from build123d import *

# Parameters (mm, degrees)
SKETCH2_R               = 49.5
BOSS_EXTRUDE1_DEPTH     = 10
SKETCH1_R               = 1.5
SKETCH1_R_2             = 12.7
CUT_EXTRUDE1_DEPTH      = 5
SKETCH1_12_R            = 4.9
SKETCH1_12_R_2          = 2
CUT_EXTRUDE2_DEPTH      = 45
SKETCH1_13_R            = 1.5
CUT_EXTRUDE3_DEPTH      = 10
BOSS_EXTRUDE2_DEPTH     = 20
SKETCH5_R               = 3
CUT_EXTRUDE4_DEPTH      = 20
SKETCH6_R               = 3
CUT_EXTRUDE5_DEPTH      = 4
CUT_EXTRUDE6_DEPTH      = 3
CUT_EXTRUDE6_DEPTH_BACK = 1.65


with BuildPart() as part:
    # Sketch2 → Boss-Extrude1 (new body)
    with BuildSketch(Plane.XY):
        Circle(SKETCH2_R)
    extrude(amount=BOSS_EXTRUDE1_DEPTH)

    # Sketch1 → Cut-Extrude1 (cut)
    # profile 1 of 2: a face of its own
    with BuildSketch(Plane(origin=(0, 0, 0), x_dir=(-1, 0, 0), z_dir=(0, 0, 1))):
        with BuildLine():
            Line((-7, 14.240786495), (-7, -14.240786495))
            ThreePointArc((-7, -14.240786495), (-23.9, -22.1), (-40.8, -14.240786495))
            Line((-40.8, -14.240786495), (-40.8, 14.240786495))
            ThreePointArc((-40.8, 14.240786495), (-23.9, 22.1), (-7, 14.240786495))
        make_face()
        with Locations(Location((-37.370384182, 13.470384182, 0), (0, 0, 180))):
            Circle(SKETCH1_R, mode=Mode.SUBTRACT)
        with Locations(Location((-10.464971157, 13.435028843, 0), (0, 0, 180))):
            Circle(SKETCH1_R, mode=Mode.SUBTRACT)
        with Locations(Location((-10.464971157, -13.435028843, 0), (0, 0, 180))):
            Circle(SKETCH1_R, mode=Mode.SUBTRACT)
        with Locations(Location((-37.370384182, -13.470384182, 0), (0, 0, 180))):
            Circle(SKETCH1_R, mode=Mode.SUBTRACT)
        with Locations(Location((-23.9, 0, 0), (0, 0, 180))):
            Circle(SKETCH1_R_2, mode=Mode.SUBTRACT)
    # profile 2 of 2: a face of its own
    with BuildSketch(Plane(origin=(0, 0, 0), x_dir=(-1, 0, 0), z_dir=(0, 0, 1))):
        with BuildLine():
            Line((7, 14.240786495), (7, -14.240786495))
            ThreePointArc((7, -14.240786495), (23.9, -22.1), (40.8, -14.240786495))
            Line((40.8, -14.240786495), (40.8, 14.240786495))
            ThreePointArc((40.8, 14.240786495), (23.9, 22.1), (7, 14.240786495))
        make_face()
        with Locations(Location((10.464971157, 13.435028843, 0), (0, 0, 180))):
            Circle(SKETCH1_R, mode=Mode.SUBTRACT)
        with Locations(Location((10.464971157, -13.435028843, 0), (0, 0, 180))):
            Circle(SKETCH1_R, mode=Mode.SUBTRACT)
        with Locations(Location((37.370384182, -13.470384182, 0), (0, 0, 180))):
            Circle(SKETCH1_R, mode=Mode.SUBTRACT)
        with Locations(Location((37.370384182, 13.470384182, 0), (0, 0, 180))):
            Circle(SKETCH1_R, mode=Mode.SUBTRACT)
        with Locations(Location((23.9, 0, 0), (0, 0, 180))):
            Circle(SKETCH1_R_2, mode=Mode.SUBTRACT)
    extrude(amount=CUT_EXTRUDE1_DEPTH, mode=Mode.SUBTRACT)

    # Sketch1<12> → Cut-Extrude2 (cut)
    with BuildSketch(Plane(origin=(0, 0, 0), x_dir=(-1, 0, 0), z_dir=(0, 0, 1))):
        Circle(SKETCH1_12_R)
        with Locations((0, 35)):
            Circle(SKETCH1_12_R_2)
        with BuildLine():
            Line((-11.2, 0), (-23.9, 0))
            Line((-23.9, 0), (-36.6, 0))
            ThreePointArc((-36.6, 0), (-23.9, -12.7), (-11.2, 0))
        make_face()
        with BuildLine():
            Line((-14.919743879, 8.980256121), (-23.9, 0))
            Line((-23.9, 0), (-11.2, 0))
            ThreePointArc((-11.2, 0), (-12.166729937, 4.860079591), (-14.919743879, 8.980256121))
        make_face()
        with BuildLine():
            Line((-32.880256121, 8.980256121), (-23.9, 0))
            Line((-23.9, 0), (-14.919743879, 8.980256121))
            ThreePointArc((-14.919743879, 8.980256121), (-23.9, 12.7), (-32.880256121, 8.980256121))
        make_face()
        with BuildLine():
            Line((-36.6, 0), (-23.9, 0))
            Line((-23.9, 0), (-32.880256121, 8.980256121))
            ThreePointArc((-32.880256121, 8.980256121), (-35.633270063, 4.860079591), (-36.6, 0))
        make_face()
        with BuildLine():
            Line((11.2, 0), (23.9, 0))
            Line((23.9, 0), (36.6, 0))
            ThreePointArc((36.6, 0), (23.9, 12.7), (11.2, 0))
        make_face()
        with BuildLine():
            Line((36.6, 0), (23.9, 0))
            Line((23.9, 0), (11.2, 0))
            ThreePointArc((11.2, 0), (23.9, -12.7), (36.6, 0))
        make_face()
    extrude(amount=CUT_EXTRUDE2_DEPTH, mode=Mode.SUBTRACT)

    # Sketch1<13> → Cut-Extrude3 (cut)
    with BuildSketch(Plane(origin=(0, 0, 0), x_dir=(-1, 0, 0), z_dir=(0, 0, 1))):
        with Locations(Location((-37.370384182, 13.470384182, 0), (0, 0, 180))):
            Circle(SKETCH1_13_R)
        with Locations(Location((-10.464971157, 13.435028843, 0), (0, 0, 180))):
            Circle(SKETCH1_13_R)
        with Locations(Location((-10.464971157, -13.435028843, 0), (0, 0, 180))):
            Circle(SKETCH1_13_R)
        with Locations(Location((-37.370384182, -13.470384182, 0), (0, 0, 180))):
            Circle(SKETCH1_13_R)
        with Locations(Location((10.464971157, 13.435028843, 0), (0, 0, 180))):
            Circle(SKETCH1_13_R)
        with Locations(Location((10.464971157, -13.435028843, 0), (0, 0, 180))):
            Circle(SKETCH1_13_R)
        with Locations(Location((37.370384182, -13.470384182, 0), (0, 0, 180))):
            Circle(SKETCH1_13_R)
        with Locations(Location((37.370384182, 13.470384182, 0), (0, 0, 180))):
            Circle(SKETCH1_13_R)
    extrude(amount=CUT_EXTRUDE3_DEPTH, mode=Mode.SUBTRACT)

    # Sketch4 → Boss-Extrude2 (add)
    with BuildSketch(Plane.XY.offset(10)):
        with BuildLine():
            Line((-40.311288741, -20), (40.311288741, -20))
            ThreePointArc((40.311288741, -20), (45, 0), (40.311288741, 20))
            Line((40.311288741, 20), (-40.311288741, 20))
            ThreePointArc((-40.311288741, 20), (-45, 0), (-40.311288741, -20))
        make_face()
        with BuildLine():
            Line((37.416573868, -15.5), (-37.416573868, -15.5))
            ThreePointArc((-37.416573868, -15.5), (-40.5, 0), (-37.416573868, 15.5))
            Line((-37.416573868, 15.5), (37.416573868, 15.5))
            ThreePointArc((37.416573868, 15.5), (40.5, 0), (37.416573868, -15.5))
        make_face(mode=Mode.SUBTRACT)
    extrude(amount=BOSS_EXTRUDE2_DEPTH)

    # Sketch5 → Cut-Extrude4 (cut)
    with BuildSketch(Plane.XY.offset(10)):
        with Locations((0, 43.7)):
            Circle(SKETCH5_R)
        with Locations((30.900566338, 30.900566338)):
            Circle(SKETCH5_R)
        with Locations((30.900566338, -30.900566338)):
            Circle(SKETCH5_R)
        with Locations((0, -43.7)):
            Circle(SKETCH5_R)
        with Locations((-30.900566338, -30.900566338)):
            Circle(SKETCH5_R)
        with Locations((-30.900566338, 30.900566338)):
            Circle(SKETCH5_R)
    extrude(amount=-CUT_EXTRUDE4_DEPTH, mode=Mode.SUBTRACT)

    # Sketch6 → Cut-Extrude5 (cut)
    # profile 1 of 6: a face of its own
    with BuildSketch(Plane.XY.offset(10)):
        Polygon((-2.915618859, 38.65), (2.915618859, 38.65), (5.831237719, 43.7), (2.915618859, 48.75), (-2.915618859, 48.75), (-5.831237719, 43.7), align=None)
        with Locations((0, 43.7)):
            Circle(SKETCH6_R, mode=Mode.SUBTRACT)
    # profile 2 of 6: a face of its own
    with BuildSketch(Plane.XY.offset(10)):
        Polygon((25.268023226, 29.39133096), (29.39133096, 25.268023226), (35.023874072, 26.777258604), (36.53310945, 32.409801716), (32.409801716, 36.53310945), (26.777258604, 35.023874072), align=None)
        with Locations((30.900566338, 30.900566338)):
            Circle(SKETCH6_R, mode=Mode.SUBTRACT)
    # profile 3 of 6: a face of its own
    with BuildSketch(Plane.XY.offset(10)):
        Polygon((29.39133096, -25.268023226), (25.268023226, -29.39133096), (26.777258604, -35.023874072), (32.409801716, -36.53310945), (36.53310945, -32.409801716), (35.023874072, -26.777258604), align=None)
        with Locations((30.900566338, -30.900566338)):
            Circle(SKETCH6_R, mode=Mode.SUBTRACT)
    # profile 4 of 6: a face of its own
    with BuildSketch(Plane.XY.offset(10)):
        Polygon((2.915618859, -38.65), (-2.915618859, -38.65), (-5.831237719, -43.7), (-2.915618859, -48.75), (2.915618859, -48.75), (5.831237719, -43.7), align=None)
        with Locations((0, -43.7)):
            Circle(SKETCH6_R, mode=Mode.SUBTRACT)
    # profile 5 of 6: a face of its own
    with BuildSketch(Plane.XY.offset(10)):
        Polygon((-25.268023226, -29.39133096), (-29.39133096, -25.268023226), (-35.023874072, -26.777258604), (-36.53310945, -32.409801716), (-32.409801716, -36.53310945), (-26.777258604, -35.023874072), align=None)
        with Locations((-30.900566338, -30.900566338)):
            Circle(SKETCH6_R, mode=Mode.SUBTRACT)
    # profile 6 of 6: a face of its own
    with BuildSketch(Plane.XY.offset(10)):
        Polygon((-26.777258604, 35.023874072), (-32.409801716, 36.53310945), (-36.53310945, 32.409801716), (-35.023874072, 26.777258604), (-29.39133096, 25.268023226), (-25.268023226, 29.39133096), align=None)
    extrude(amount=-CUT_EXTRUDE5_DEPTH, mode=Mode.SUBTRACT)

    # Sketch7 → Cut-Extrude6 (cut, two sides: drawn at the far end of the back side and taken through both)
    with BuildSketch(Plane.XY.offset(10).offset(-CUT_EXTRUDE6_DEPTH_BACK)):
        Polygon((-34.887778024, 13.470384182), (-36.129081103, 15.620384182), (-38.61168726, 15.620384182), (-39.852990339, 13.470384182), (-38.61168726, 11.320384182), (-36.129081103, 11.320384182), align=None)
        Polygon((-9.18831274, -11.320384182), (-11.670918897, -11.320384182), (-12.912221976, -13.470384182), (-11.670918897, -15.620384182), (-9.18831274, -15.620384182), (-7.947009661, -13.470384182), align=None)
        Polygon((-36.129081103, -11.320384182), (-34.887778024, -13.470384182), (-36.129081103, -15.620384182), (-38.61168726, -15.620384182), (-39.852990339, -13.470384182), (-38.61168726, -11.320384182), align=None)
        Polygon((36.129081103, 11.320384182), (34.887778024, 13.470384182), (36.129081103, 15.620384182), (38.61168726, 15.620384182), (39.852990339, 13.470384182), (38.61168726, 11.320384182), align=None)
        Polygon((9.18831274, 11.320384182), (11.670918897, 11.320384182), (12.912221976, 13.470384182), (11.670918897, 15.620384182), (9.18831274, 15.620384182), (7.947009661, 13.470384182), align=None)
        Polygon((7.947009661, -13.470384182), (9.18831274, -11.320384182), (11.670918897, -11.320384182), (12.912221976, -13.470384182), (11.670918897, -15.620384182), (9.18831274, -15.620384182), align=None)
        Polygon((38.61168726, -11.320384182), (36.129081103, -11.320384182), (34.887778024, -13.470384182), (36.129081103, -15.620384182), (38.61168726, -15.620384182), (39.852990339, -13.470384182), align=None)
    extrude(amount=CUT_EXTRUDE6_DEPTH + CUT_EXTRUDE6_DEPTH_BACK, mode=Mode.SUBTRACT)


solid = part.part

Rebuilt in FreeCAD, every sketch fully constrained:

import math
import FreeCAD as App
import Part
import Sketcher
Q = App.Units.Quantity


def add_polygon(sketch, points):
    """Adds a closed chain of lines whose ends are joined by coincident constraints."""
    first, n = sketch.GeometryCount, len(points)
    for a, b in zip(points, points[1:] + points[:1]):
        sketch.addGeometry(Part.LineSegment(App.Vector(*a, 0), App.Vector(*b, 0)), False)
    for i in range(n):
        sketch.addConstraint(Sketcher.Constraint("Coincident", first + i, 2, first + (i + 1) % n, 1))

doc = App.newDocument("Part")
params = doc.addObject("Spreadsheet::Sheet", "Params")
for row, (alias, value) in enumerate([
    ("sketch1_diameter", "99 mm"),
    ("pad1_length", "10 mm"),
    ("sketch2_diameter", "3 mm"),
    ("sketch2_diameter2", "25.4 mm"),
    ("sketch2_radius", "22.1 mm"),
    ("pocket1_length", "5 mm"),
    ("sketch3_diameter", "4 mm"),
    ("sketch3_diameter2", "9.8 mm"),
    ("sketch3_diameter3", "25.4 mm"),
    ("pocket2_length", "45 mm"),
    ("sketch4_diameter", "3 mm"),
    ("pocket3_length", "10 mm"),
    ("sketch5_radius", "45 mm"),
    ("sketch5_radius2", "40.5 mm"),
    ("pad2_length", "20 mm"),
    ("sketch6_diameter", "6 mm"),
    ("pocket4_length", "20 mm"),
    ("sketch7_diameter", "6 mm"),
    ("pocket5_length", "4 mm"),
    ("pocket6_length", "3 mm"),
    ("pocket6_length2", "1.65 mm"),
], start=1):
    params.set(f"A{row}", alias)
    params.set(f"B{row}", "=" + value)
    params.setAlias(f"B{row}", alias)

body = doc.addObject("PartDesign::Body", "Body")

sketch1 = body.newObject("Sketcher::SketchObject", "Sketch")
sketch1.AttachmentSupport = (doc.getObject("XY_Plane"), [""])
sketch1.MapMode = "FlatFace"
sketch1.addGeometry(Part.Circle(App.Vector(0, 0, 0), App.Vector(0, 0, 1), 49.5), False)
sketch1.addConstraint(Sketcher.Constraint("Coincident", 0, 3, -1, 1))
sketch1.addConstraint(Sketcher.Constraint("Diameter", 0, Q("99 mm")))
sketch1.setExpression("Constraints[1]", "Params.sketch1_diameter")
pad1 = body.newObject("PartDesign::Pad", "Pad")
pad1.Profile = sketch1
pad1.setExpression("Length", "Params.pad1_length")

sketch2 = body.newObject("Sketcher::SketchObject", "Sketch001")
sketch2.AttachmentSupport = (doc.getObject("XY_Plane"), [""])
sketch2.MapMode = "FlatFace"
sketch2.addGeometry(Part.LineSegment(App.Vector(7, 14.240786, 0), App.Vector(7, -14.240786, 0)), False)
sketch2.addGeometry(Part.ArcOfCircle(Part.Circle(App.Vector(23.9, 0, 0), App.Vector(0, 0, 1), 22.1), math.radians(-139.880833), math.radians(-40.119167)), False)
sketch2.addGeometry(Part.LineSegment(App.Vector(40.8, -14.240786, 0), App.Vector(40.8, 14.240786, 0)), False)
sketch2.addGeometry(Part.ArcOfCircle(Part.Circle(App.Vector(23.9, 0, 0), App.Vector(0, 0, 1), 22.1), math.radians(40.119167), math.radians(139.880833)), False)
sketch2.addGeometry(Part.Circle(App.Vector(10.464971, 13.435029, 0), App.Vector(0, 0, 1), 1.5), False)
sketch2.addGeometry(Part.Circle(App.Vector(37.370384, 13.470384, 0), App.Vector(0, 0, 1), 1.5), False)
sketch2.addGeometry(Part.Circle(App.Vector(23.9, 0, 0), App.Vector(0, 0, 1), 12.7), False)
sketch2.addGeometry(Part.Circle(App.Vector(10.464971, -13.435029, 0), App.Vector(0, 0, 1), 1.5), False)
sketch2.addGeometry(Part.Circle(App.Vector(37.370384, -13.470384, 0), App.Vector(0, 0, 1), 1.5), False)
sketch2.addGeometry(Part.LineSegment(App.Vector(-7, -14.240786, 0), App.Vector(-7, 14.240786, 0)), False)
sketch2.addGeometry(Part.ArcOfCircle(Part.Circle(App.Vector(-23.9, 0, 0), App.Vector(0, 0, 1), 22.1), math.radians(40.119167), math.radians(139.880833)), False)
sketch2.addGeometry(Part.LineSegment(App.Vector(-40.8, 14.240786, 0), App.Vector(-40.8, -14.240786, 0)), False)
sketch2.addGeometry(Part.ArcOfCircle(Part.Circle(App.Vector(-23.9, 0, 0), App.Vector(0, 0, 1), 22.1), math.radians(-139.880833), math.radians(-40.119167)), False)
sketch2.addGeometry(Part.Circle(App.Vector(-10.464971, 13.435029, 0), App.Vector(0, 0, 1), 1.5), False)
sketch2.addGeometry(Part.Circle(App.Vector(-37.370384, 13.470384, 0), App.Vector(0, 0, 1), 1.5), False)
sketch2.addGeometry(Part.Circle(App.Vector(-23.9, 0, 0), App.Vector(0, 0, 1), 12.7), False)
sketch2.addGeometry(Part.Circle(App.Vector(-10.464971, -13.435029, 0), App.Vector(0, 0, 1), 1.5), False)
sketch2.addGeometry(Part.Circle(App.Vector(-37.370384, -13.470384, 0), App.Vector(0, 0, 1), 1.5), False)
sketch2.addConstraint(Sketcher.Constraint("Coincident", 0, 2, 1, 1))
sketch2.addConstraint(Sketcher.Constraint("Coincident", 1, 2, 2, 1))
sketch2.addConstraint(Sketcher.Constraint("Coincident", 2, 2, 3, 1))
sketch2.addConstraint(Sketcher.Constraint("Coincident", 3, 2, 0, 1))
sketch2.addConstraint(Sketcher.Constraint("Coincident", 9, 2, 10, 1))
sketch2.addConstraint(Sketcher.Constraint("Coincident", 10, 2, 11, 1))
sketch2.addConstraint(Sketcher.Constraint("Coincident", 11, 2, 12, 1))
sketch2.addConstraint(Sketcher.Constraint("Coincident", 12, 2, 9, 1))
sketch2.addConstraint(Sketcher.Constraint("Vertical", 0))
sketch2.addConstraint(Sketcher.Constraint("Vertical", 2))
sketch2.addConstraint(Sketcher.Constraint("Vertical", 9))
sketch2.addConstraint(Sketcher.Constraint("Vertical", 11))
sketch2.addConstraint(Sketcher.Constraint("Coincident", 3, 3, 1, 3))
sketch2.addConstraint(Sketcher.Constraint("Coincident", 6, 3, 1, 3))
sketch2.addConstraint(Sketcher.Constraint("Coincident", 12, 3, 10, 3))
sketch2.addConstraint(Sketcher.Constraint("Coincident", 15, 3, 10, 3))
sketch2.addConstraint(Sketcher.Constraint("Equal", 1, 3))
sketch2.addConstraint(Sketcher.Constraint("Equal", 4, 5))
sketch2.addConstraint(Sketcher.Constraint("Equal", 5, 7))
sketch2.addConstraint(Sketcher.Constraint("Equal", 7, 8))
sketch2.addConstraint(Sketcher.Constraint("Equal", 3, 10))
sketch2.addConstraint(Sketcher.Constraint("Equal", 10, 12))
sketch2.addConstraint(Sketcher.Constraint("Equal", 8, 13))
sketch2.addConstraint(Sketcher.Constraint("Equal", 13, 14))
sketch2.addConstraint(Sketcher.Constraint("Equal", 6, 15))
sketch2.addConstraint(Sketcher.Constraint("Equal", 14, 16))
sketch2.addConstraint(Sketcher.Constraint("Equal", 16, 17))
sketch2.addConstraint(Sketcher.Constraint("Symmetric", 1, 3, 10, 3, -1, 1))
sketch2.addConstraint(Sketcher.Constraint("Symmetric", 7, 3, 13, 3, -1, 1))
sketch2.addConstraint(Sketcher.Constraint("Symmetric", 8, 3, 14, 3, -1, 1))
sketch2.addConstraint(Sketcher.Constraint("Symmetric", 4, 3, 16, 3, -1, 1))
sketch2.addConstraint(Sketcher.Constraint("Symmetric", 5, 3, 17, 3, -1, 1))
sketch2.addConstraint(Sketcher.Constraint("Symmetric", 4, 3, 13, 3, -2))
sketch2.addConstraint(Sketcher.Constraint("Symmetric", 5, 3, 14, 3, -2))
sketch2.addConstraint(Sketcher.Constraint("Symmetric", 3, 2, 9, 2, -2))
sketch2.addConstraint(Sketcher.Constraint("Horizontal", 0, 2, 1, 2))
sketch2.addConstraint(Sketcher.Constraint("Horizontal", 9, 2, 10, 2))
sketch2.addConstraint(Sketcher.Constraint("Diameter", 4, Q("3 mm")))
sketch2.addConstraint(Sketcher.Constraint("Diameter", 6, Q("25.4 mm")))
sketch2.addConstraint(Sketcher.Constraint("Radius", 1, Q("22.1 mm")))
sketch2.addConstraint(Sketcher.Constraint("DistanceX", -1, 1, 0, 2, Q("7 mm")))
sketch2.addConstraint(Sketcher.Constraint("DistanceX", -1, 1, 1, 3, Q("23.9 mm")))
sketch2.addConstraint(Sketcher.Constraint("DistanceX", -1, 1, 4, 3, Q("10.464971 mm")))
sketch2.addConstraint(Sketcher.Constraint("DistanceY", -1, 1, 4, 3, Q("13.435029 mm")))
sketch2.addConstraint(Sketcher.Constraint("DistanceY", 8, 3, 5, 3, Q("26.940768 mm")))
sketch2.addConstraint(Sketcher.Constraint("DistanceX", -1, 1, 5, 3, Q("37.370384 mm")))
sketch2.setExpression("Constraints[37]", "Params.sketch2_diameter")
sketch2.setExpression("Constraints[38]", "Params.sketch2_diameter2")
sketch2.setExpression("Constraints[39]", "Params.sketch2_radius")
pocket1 = body.newObject("PartDesign::Pocket", "Pocket")
pocket1.Profile = sketch2
pocket1.setExpression("Length", "Params.pocket1_length")
pocket1.Reversed = True

sketch3 = body.newObject("Sketcher::SketchObject", "Sketch002")
sketch3.AttachmentSupport = (doc.getObject("XY_Plane"), [""])
sketch3.MapMode = "FlatFace"
sketch3.addGeometry(Part.Circle(App.Vector(0, 0, 0), App.Vector(0, 0, 1), 4.9), False)
sketch3.addGeometry(Part.Circle(App.Vector(0, -35, 0), App.Vector(0, 0, 1), 2), False)
sketch3.addGeometry(Part.ArcOfCircle(Part.Circle(App.Vector(23.9, 0, 0), App.Vector(0, 0, 1), 12.7), math.radians(0), math.radians(180)), False)
sketch3.addGeometry(Part.ArcOfCircle(Part.Circle(App.Vector(23.9, 0, 0), App.Vector(0, 0, 1), 12.7), math.radians(180), math.radians(225)), False)
sketch3.addGeometry(Part.ArcOfCircle(Part.Circle(App.Vector(23.9, 0, 0), App.Vector(0, 0, 1), 12.7), math.radians(-135), math.radians(-45)), False)
sketch3.addGeometry(Part.ArcOfCircle(Part.Circle(App.Vector(23.9, 0, 0), App.Vector(0, 0, 1), 12.7), math.radians(-45), math.radians(0)), False)
sketch3.addGeometry(Part.Circle(App.Vector(-23.9, 0, 0), App.Vector(0, 0, 1), 12.7), False)
sketch3.addConstraint(Sketcher.Constraint("Tangent", 2, 2, 3, 1))
sketch3.addConstraint(Sketcher.Constraint("Tangent", 3, 2, 4, 1))
sketch3.addConstraint(Sketcher.Constraint("Tangent", 4, 2, 5, 1))
sketch3.addConstraint(Sketcher.Constraint("Tangent", 5, 2, 2, 1))
sketch3.addConstraint(Sketcher.Constraint("Coincident", 0, 3, -1, 1))
sketch3.addConstraint(Sketcher.Constraint("Equal", 2, 3))
sketch3.addConstraint(Sketcher.Constraint("Equal", 5, 6))
sketch3.addConstraint(Sketcher.Constraint("Symmetric", 2, 3, 6, 3, -1, 1))
sketch3.addConstraint(Sketcher.Constraint("PointOnObject", 1, 3, -2))
sketch3.addConstraint(Sketcher.Constraint("PointOnObject", 2, 3, -1))
sketch3.addConstraint(Sketcher.Constraint("PointOnObject", 2, 2, -1))
sketch3.addConstraint(Sketcher.Constraint("PointOnObject", 5, 2, -1))
sketch3.addConstraint(Sketcher.Constraint("Horizontal", 3, 2, 4, 2))
sketch3.addConstraint(Sketcher.Constraint("Diameter", 1, Q("4 mm")))
sketch3.addConstraint(Sketcher.Constraint("Diameter", 0, Q("9.8 mm")))
sketch3.addConstraint(Sketcher.Constraint("Diameter", 6, Q("25.4 mm")))
sketch3.addConstraint(Sketcher.Constraint("DistanceY", 1, 3, -1, 1, Q("35 mm")))
sketch3.addConstraint(Sketcher.Constraint("DistanceX", -1, 1, 2, 3, Q("23.9 mm")))
sketch3.addConstraint(Sketcher.Constraint("DistanceX", -1, 1, 3, 2, Q("14.919744 mm")))
sketch3.setExpression("Constraints[13]", "Params.sketch3_diameter")
sketch3.setExpression("Constraints[14]", "Params.sketch3_diameter2")
sketch3.setExpression("Constraints[15]", "Params.sketch3_diameter3")
pocket2 = body.newObject("PartDesign::Pocket", "Pocket001")
pocket2.Profile = sketch3
pocket2.setExpression("Length", "Params.pocket2_length")
pocket2.Reversed = True

sketch4 = body.newObject("Sketcher::SketchObject", "Sketch003")
sketch4.AttachmentSupport = (doc.getObject("XY_Plane"), [""])
sketch4.MapMode = "FlatFace"
sketch4.addGeometry(Part.Circle(App.Vector(37.370384, -13.470384, 0), App.Vector(0, 0, 1), 1.5), False)
sketch4.addGeometry(Part.Circle(App.Vector(10.464971, -13.435029, 0), App.Vector(0, 0, 1), 1.5), False)
sketch4.addGeometry(Part.Circle(App.Vector(10.464971, 13.435029, 0), App.Vector(0, 0, 1), 1.5), False)
sketch4.addGeometry(Part.Circle(App.Vector(37.370384, 13.470384, 0), App.Vector(0, 0, 1), 1.5), False)
sketch4.addGeometry(Part.Circle(App.Vector(-10.464971, -13.435029, 0), App.Vector(0, 0, 1), 1.5), False)
sketch4.addGeometry(Part.Circle(App.Vector(-10.464971, 13.435029, 0), App.Vector(0, 0, 1), 1.5), False)
sketch4.addGeometry(Part.Circle(App.Vector(-37.370384, 13.470384, 0), App.Vector(0, 0, 1), 1.5), False)
sketch4.addGeometry(Part.Circle(App.Vector(-37.370384, -13.470384, 0), App.Vector(0, 0, 1), 1.5), False)
sketch4.addConstraint(Sketcher.Constraint("Equal", 0, 1))
sketch4.addConstraint(Sketcher.Constraint("Equal", 1, 2))
sketch4.addConstraint(Sketcher.Constraint("Equal", 2, 3))
sketch4.addConstraint(Sketcher.Constraint("Equal", 3, 4))
sketch4.addConstraint(Sketcher.Constraint("Equal", 4, 5))
sketch4.addConstraint(Sketcher.Constraint("Equal", 5, 6))
sketch4.addConstraint(Sketcher.Constraint("Equal", 6, 7))
sketch4.addConstraint(Sketcher.Constraint("Symmetric", 2, 3, 4, 3, -1, 1))
sketch4.addConstraint(Sketcher.Constraint("Symmetric", 1, 3, 5, 3, -1, 1))
sketch4.addConstraint(Sketcher.Constraint("Symmetric", 0, 3, 6, 3, -1, 1))
sketch4.addConstraint(Sketcher.Constraint("Symmetric", 3, 3, 7, 3, -1, 1))
sketch4.addConstraint(Sketcher.Constraint("Symmetric", 1, 3, 4, 3, -2))
sketch4.addConstraint(Sketcher.Constraint("Symmetric", 3, 3, 6, 3, -2))
sketch4.addConstraint(Sketcher.Constraint("Diameter", 0, Q("3 mm")))
sketch4.addConstraint(Sketcher.Constraint("DistanceX", -1, 1, 1, 3, Q("10.464971 mm")))
sketch4.addConstraint(Sketcher.Constraint("DistanceY", 1, 3, -1, 1, Q("13.435029 mm")))
sketch4.addConstraint(Sketcher.Constraint("DistanceY", 0, 3, 3, 3, Q("26.940768 mm")))
sketch4.addConstraint(Sketcher.Constraint("DistanceX", 6, 3, 3, 3, Q("74.740768 mm")))
sketch4.setExpression("Constraints[13]", "Params.sketch4_diameter")
pocket3 = body.newObject("PartDesign::Pocket", "Pocket002")
pocket3.Profile = sketch4
pocket3.setExpression("Length", "Params.pocket3_length")
pocket3.Reversed = True

sketch5 = body.newObject("Sketcher::SketchObject", "Sketch004")
sketch5.AttachmentSupport = (doc.getObject("XY_Plane"), [""])
sketch5.MapMode = "FlatFace"
sketch5.AttachmentOffset = App.Placement(App.Vector(0, 0, 10), App.Rotation())
sketch5.addGeometry(Part.LineSegment(App.Vector(-40.311289, -20, 0), App.Vector(40.311289, -20, 0)), False)
sketch5.addGeometry(Part.ArcOfCircle(Part.Circle(App.Vector(0, 0, 0), App.Vector(0, 0, 1), 45), math.radians(-26.3878), math.radians(26.3878)), False)
sketch5.addGeometry(Part.LineSegment(App.Vector(40.311289, 20, 0), App.Vector(-40.311289, 20, 0)), False)
sketch5.addGeometry(Part.ArcOfCircle(Part.Circle(App.Vector(0, 0, 0), App.Vector(0, 0, 1), 45), math.radians(153.6122), math.radians(206.3878)), False)
sketch5.addGeometry(Part.ArcOfCircle(Part.Circle(App.Vector(0, 0, 0), App.Vector(0, 0, 1), 40.5), math.radians(-22.502023), math.radians(22.502023)), False)
sketch5.addGeometry(Part.LineSegment(App.Vector(37.416574, -15.5, 0), App.Vector(-37.416574, -15.5, 0)), False)
sketch5.addGeometry(Part.ArcOfCircle(Part.Circle(App.Vector(0, 0, 0), App.Vector(0, 0, 1), 40.5), math.radians(157.497977), math.radians(202.502023)), False)
sketch5.addGeometry(Part.LineSegment(App.Vector(-37.416574, 15.5, 0), App.Vector(37.416574, 15.5, 0)), False)
sketch5.addConstraint(Sketcher.Constraint("Coincident", 0, 2, 1, 1))
sketch5.addConstraint(Sketcher.Constraint("Coincident", 1, 2, 2, 1))
sketch5.addConstraint(Sketcher.Constraint("Coincident", 2, 2, 3, 1))
sketch5.addConstraint(Sketcher.Constraint("Coincident", 3, 2, 0, 1))
sketch5.addConstraint(Sketcher.Constraint("Coincident", 4, 1, 5, 1))
sketch5.addConstraint(Sketcher.Constraint("Coincident", 5, 2, 6, 2))
sketch5.addConstraint(Sketcher.Constraint("Coincident", 6, 1, 7, 1))
sketch5.addConstraint(Sketcher.Constraint("Coincident", 7, 2, 4, 2))
sketch5.addConstraint(Sketcher.Constraint("Horizontal", 0))
sketch5.addConstraint(Sketcher.Constraint("Horizontal", 2))
sketch5.addConstraint(Sketcher.Constraint("Horizontal", 5))
sketch5.addConstraint(Sketcher.Constraint("Horizontal", 7))
sketch5.addConstraint(Sketcher.Constraint("Coincident", 1, 3, -1, 1))
sketch5.addConstraint(Sketcher.Constraint("Coincident", 3, 3, -1, 1))
sketch5.addConstraint(Sketcher.Constraint("Coincident", 4, 3, -1, 1))
sketch5.addConstraint(Sketcher.Constraint("Coincident", 6, 3, -1, 1))
sketch5.addConstraint(Sketcher.Constraint("Equal", 1, 3))
sketch5.addConstraint(Sketcher.Constraint("Equal", 4, 6))
sketch5.addConstraint(Sketcher.Constraint("Vertical", 0, 2, 1, 2))
sketch5.addConstraint(Sketcher.Constraint("Vertical", 5, 2, 6, 1))
sketch5.addConstraint(Sketcher.Constraint("Radius", 1, Q("45 mm")))
sketch5.addConstraint(Sketcher.Constraint("Radius", 4, Q("40.5 mm")))
sketch5.addConstraint(Sketcher.Constraint("DistanceY", 0, 2, -1, 1, Q("20 mm")))
sketch5.addConstraint(Sketcher.Constraint("DistanceY", 5, 2, 6, 1, Q("31 mm")))
sketch5.setExpression("Constraints[20]", "Params.sketch5_radius")
sketch5.setExpression("Constraints[21]", "Params.sketch5_radius2")
pad2 = body.newObject("PartDesign::Pad", "Pad001")
pad2.Profile = sketch5
pad2.setExpression("Length", "Params.pad2_length")

sketch6 = body.newObject("Sketcher::SketchObject", "Sketch005")
sketch6.AttachmentSupport = (doc.getObject("XY_Plane"), [""])
sketch6.MapMode = "FlatFace"
sketch6.AttachmentOffset = App.Placement(App.Vector(0, 0, 10), App.Rotation())
sketch6.addGeometry(Part.Circle(App.Vector(0, 43.7, 0), App.Vector(0, 0, 1), 3), False)
sketch6.addGeometry(Part.Circle(App.Vector(30.900566, 30.900566, 0), App.Vector(0, 0, 1), 3), False)
sketch6.addGeometry(Part.Circle(App.Vector(30.900566, -30.900566, 0), App.Vector(0, 0, 1), 3), False)
sketch6.addGeometry(Part.Circle(App.Vector(0, -43.7, 0), App.Vector(0, 0, 1), 3), False)
sketch6.addGeometry(Part.Circle(App.Vector(-30.900566, -30.900566, 0), App.Vector(0, 0, 1), 3), False)
sketch6.addGeometry(Part.Circle(App.Vector(-30.900566, 30.900566, 0), App.Vector(0, 0, 1), 3), False)
sketch6.addConstraint(Sketcher.Constraint("Equal", 0, 1))
sketch6.addConstraint(Sketcher.Constraint("Equal", 1, 2))
sketch6.addConstraint(Sketcher.Constraint("Equal", 2, 3))
sketch6.addConstraint(Sketcher.Constraint("Equal", 3, 4))
sketch6.addConstraint(Sketcher.Constraint("Equal", 4, 5))
sketch6.addConstraint(Sketcher.Constraint("Symmetric", 0, 3, 3, 3, -1, 1))
sketch6.addConstraint(Sketcher.Constraint("Symmetric", 1, 3, 4, 3, -1, 1))
sketch6.addConstraint(Sketcher.Constraint("Symmetric", 2, 3, 5, 3, -1, 1))
sketch6.addConstraint(Sketcher.Constraint("Symmetric", 2, 3, 4, 3, -2))
sketch6.addConstraint(Sketcher.Constraint("PointOnObject", 0, 3, -2))
sketch6.addConstraint(Sketcher.Constraint("Diameter", 0, Q("6 mm")))
sketch6.addConstraint(Sketcher.Constraint("DistanceY", -1, 1, 0, 3, Q("43.7 mm")))
sketch6.addConstraint(Sketcher.Constraint("DistanceX", -1, 1, 1, 3, Q("30.900566 mm")))
sketch6.addConstraint(Sketcher.Constraint("DistanceY", -1, 1, 1, 3, Q("30.900566 mm")))
sketch6.setExpression("Constraints[10]", "Params.sketch6_diameter")
pocket4 = body.newObject("PartDesign::Pocket", "Pocket003")
pocket4.Profile = sketch6
pocket4.setExpression("Length", "Params.pocket4_length")

sketch7 = body.newObject("Sketcher::SketchObject", "Sketch006")
sketch7.AttachmentSupport = (doc.getObject("XY_Plane"), [""])
sketch7.MapMode = "FlatFace"
sketch7.AttachmentOffset = App.Placement(App.Vector(0, 0, 10), App.Rotation())
add_polygon(sketch7, [(-2.915619, 38.65), (2.915619, 38.65), (5.831238, 43.7), (2.915619, 48.75), (-2.915619, 48.75), (-5.831238, 43.7)])
sketch7.addGeometry(Part.Circle(App.Vector(0, 43.7, 0), App.Vector(0, 0, 1), 3), False)
add_polygon(sketch7, [(25.268023, 29.391331), (29.391331, 25.268023), (35.023874, 26.777259), (36.533109, 32.409802), (32.409802, 36.533109), (26.777259, 35.023874)])
sketch7.addGeometry(Part.Circle(App.Vector(30.900566, 30.900566, 0), App.Vector(0, 0, 1), 3), False)
add_polygon(sketch7, [(29.391331, -25.268023), (25.268023, -29.391331), (26.777259, -35.023874), (32.409802, -36.533109), (36.533109, -32.409802), (35.023874, -26.777259)])
sketch7.addGeometry(Part.Circle(App.Vector(30.900566, -30.900566, 0), App.Vector(0, 0, 1), 3), False)
add_polygon(sketch7, [(2.915619, -38.65), (-2.915619, -38.65), (-5.831238, -43.7), (-2.915619, -48.75), (2.915619, -48.75), (5.831238, -43.7)])
sketch7.addGeometry(Part.Circle(App.Vector(0, -43.7, 0), App.Vector(0, 0, 1), 3), False)
add_polygon(sketch7, [(-25.268023, -29.391331), (-29.391331, -25.268023), (-35.023874, -26.777259), (-36.533109, -32.409802), (-32.409802, -36.533109), (-26.777259, -35.023874)])
sketch7.addGeometry(Part.Circle(App.Vector(-30.900566, -30.900566, 0), App.Vector(0, 0, 1), 3), False)
add_polygon(sketch7, [(-26.777259, 35.023874), (-32.409802, 36.533109), (-36.533109, 32.409802), (-35.023874, 26.777259), (-29.391331, 25.268023), (-25.268023, 29.391331)])
sketch7.addConstraint(Sketcher.Constraint("Horizontal", 0))
sketch7.addConstraint(Sketcher.Constraint("Horizontal", 3))
sketch7.addConstraint(Sketcher.Constraint("Horizontal", 21))
sketch7.addConstraint(Sketcher.Constraint("Horizontal", 24))
sketch7.addConstraint(Sketcher.Constraint("Equal", 6, 13))
sketch7.addConstraint(Sketcher.Constraint("Equal", 13, 20))
sketch7.addConstraint(Sketcher.Constraint("Equal", 20, 27))
sketch7.addConstraint(Sketcher.Constraint("Equal", 27, 34))
sketch7.addConstraint(Sketcher.Constraint("Symmetric", 6, 3, 27, 3, -1, 1))
sketch7.addConstraint(Sketcher.Constraint("Symmetric", 13, 3, 34, 3, -1, 1))
sketch7.addConstraint(Sketcher.Constraint("Symmetric", 0, 2, 21, 2, -1, 1))
sketch7.addConstraint(Sketcher.Constraint("Symmetric", 1, 2, 22, 2, -1, 1))
sketch7.addConstraint(Sketcher.Constraint("Symmetric", 2, 2, 23, 2, -1, 1))
sketch7.addConstraint(Sketcher.Constraint("Symmetric", 4, 2, 25, 2, -1, 1))
sketch7.addConstraint(Sketcher.Constraint("Symmetric", 7, 2, 28, 2, -1, 1))
sketch7.addConstraint(Sketcher.Constraint("Symmetric", 8, 2, 29, 2, -1, 1))
sketch7.addConstraint(Sketcher.Constraint("Symmetric", 9, 2, 30, 2, -1, 1))
sketch7.addConstraint(Sketcher.Constraint("Symmetric", 10, 2, 31, 2, -1, 1))
sketch7.addConstraint(Sketcher.Constraint("Symmetric", 11, 2, 32, 2, -1, 1))
sketch7.addConstraint(Sketcher.Constraint("Symmetric", 12, 2, 33, 2, -1, 1))
sketch7.addConstraint(Sketcher.Constraint("Symmetric", 16, 2, 35, 2, -1, 1))
sketch7.addConstraint(Sketcher.Constraint("Symmetric", 17, 2, 36, 2, -1, 1))
sketch7.addConstraint(Sketcher.Constraint("Symmetric", 18, 2, 37, 2, -1, 1))
sketch7.addConstraint(Sketcher.Constraint("Symmetric", 19, 2, 38, 2, -1, 1))
sketch7.addConstraint(Sketcher.Constraint("Symmetric", 14, 2, 39, 2, -1, 1))
sketch7.addConstraint(Sketcher.Constraint("Symmetric", 15, 2, 40, 2, -1, 1))
sketch7.addConstraint(Sketcher.Constraint("Symmetric", 20, 3, 34, 3, -2))
sketch7.addConstraint(Sketcher.Constraint("Symmetric", 1, 2, 4, 2, -2))
sketch7.addConstraint(Sketcher.Constraint("Symmetric", 19, 2, 28, 2, -2))
sketch7.addConstraint(Sketcher.Constraint("Symmetric", 18, 2, 29, 2, -2))
sketch7.addConstraint(Sketcher.Constraint("Symmetric", 17, 2, 30, 2, -2))
sketch7.addConstraint(Sketcher.Constraint("Symmetric", 16, 2, 31, 2, -2))
sketch7.addConstraint(Sketcher.Constraint("Symmetric", 15, 2, 32, 2, -2))
sketch7.addConstraint(Sketcher.Constraint("Symmetric", 14, 2, 33, 2, -2))
sketch7.addConstraint(Sketcher.Constraint("PointOnObject", 6, 3, -2))
sketch7.addConstraint(Sketcher.Constraint("Parallel", 1, 4))
sketch7.addConstraint(Sketcher.Constraint("Parallel", 2, 5))
sketch7.addConstraint(Sketcher.Constraint("Parallel", 7, 10))
sketch7.addConstraint(Sketcher.Constraint("Parallel", 8, 11))
sketch7.addConstraint(Sketcher.Constraint("Parallel", 9, 12))
sketch7.addConstraint(Sketcher.Constraint("Perpendicular", 10, 14))
sketch7.addConstraint(Sketcher.Constraint("Perpendicular", 11, 15))
sketch7.addConstraint(Sketcher.Constraint("Parallel", 22, 25))
sketch7.addConstraint(Sketcher.Constraint("Parallel", 23, 26))
sketch7.addConstraint(Sketcher.Constraint("Horizontal", 6, 3, 1, 2))
sketch7.addConstraint(Sketcher.Constraint("Vertical", 0, 2, 2, 2))
sketch7.addConstraint(Sketcher.Constraint("Vertical", 3, 2, 5, 2))
sketch7.addConstraint(Sketcher.Constraint("Equal", 5, 7))
sketch7.addConstraint(Sketcher.Constraint("Equal", 7, 8))
sketch7.addConstraint(Sketcher.Constraint("Equal", 8, 9))
sketch7.addConstraint(Sketcher.Constraint("Equal", 9, 10))
sketch7.addConstraint(Sketcher.Constraint("Diameter", 6, Q("6 mm")))
sketch7.addConstraint(Sketcher.Constraint("Angle", 1, Q("60 deg")))
sketch7.addConstraint(Sketcher.Constraint("Angle", 8, Q("15 deg")))
sketch7.addConstraint(Sketcher.Constraint("DistanceY", -1, 1, 6, 3, Q("43.7 mm")))
sketch7.addConstraint(Sketcher.Constraint("DistanceY", 0, 2, 2, 2, Q("10.1 mm")))
sketch7.addConstraint(Sketcher.Constraint("DistanceY", -1, 1, 9, 2, Q("32.409802 mm")))
sketch7.addConstraint(Sketcher.Constraint("DistanceX", -1, 1, 10, 2, Q("32.409802 mm")))
sketch7.addConstraint(Sketcher.Constraint("DistanceX", 0, 1, 0, 2, Q("5.831238 mm")))
sketch7.addConstraint(Sketcher.Constraint("DistanceX", 1, 2, 13, 3, Q("25.069329 mm")))
sketch7.addConstraint(Sketcher.Constraint("DistanceY", -1, 1, 13, 3, Q("30.900566 mm")))
sketch7.setExpression("Constraints[87]", "Params.sketch7_diameter")
pocket5 = body.newObject("PartDesign::Pocket", "Pocket004")
pocket5.Profile = sketch7
pocket5.setExpression("Length", "Params.pocket5_length")

sketch8 = body.newObject("Sketcher::SketchObject", "Sketch007")
sketch8.AttachmentSupport = (doc.getObject("XY_Plane"), [""])
sketch8.MapMode = "FlatFace"
sketch8.AttachmentOffset = App.Placement(App.Vector(0, 0, 10), App.Rotation())
add_polygon(sketch8, [(-34.887778, 13.470384), (-36.129081, 15.620384), (-38.611687, 15.620384), (-39.85299, 13.470384), (-38.611687, 11.320384), (-36.129081, 11.320384)])
add_polygon(sketch8, [(-9.188313, -11.320384), (-11.670919, -11.320384), (-12.912222, -13.470384), (-11.670919, -15.620384), (-9.188313, -15.620384), (-7.94701, -13.470384)])
add_polygon(sketch8, [(-34.887778, -13.470384), (-36.129081, -11.320384), (-38.611687, -11.320384), (-39.85299, -13.470384), (-38.611687, -15.620384), (-36.129081, -15.620384)])
add_polygon(sketch8, [(34.887778, 13.470384), (36.129081, 11.320384), (38.611687, 11.320384), (39.85299, 13.470384), (38.611687, 15.620384), (36.129081, 15.620384)])
add_polygon(sketch8, [(9.188313, 11.320384), (11.670919, 11.320384), (12.912222, 13.470384), (11.670919, 15.620384), (9.188313, 15.620384), (7.94701, 13.470384)])
add_polygon(sketch8, [(9.188313, -11.320384), (7.94701, -13.470384), (9.188313, -15.620384), (11.670919, -15.620384), (12.912222, -13.470384), (11.670919, -11.320384)])
add_polygon(sketch8, [(38.611687, -11.320384), (36.129081, -11.320384), (34.887778, -13.470384), (36.129081, -15.620384), (38.611687, -15.620384), (39.85299, -13.470384)])
sketch8.addConstraint(Sketcher.Constraint("Horizontal", 1))
sketch8.addConstraint(Sketcher.Constraint("Horizontal", 4))
sketch8.addConstraint(Sketcher.Constraint("Horizontal", 6))
sketch8.addConstraint(Sketcher.Constraint("Horizontal", 9))
sketch8.addConstraint(Sketcher.Constraint("Horizontal", 13))
sketch8.addConstraint(Sketcher.Constraint("Horizontal", 16))
sketch8.addConstraint(Sketcher.Constraint("Horizontal", 19))
sketch8.addConstraint(Sketcher.Constraint("Horizontal", 22))
sketch8.addConstraint(Sketcher.Constraint("Horizontal", 24))
sketch8.addConstraint(Sketcher.Constraint("Horizontal", 27))
sketch8.addConstraint(Sketcher.Constraint("Horizontal", 32))
sketch8.addConstraint(Sketcher.Constraint("Horizontal", 35))
sketch8.addConstraint(Sketcher.Constraint("Horizontal", 36))
sketch8.addConstraint(Sketcher.Constraint("Horizontal", 39))
sketch8.addConstraint(Sketcher.Constraint("Symmetric", 12, 2, 18, 2, -1, 1))
sketch8.addConstraint(Sketcher.Constraint("Symmetric", 14, 2, 20, 2, -1, 1))
sketch8.addConstraint(Sketcher.Constraint("Symmetric", 15, 2, 21, 2, -1, 1))
sketch8.addConstraint(Sketcher.Constraint("Symmetric", 17, 2, 23, 2, -1, 1))
sketch8.addConstraint(Sketcher.Constraint("Symmetric", 6, 2, 24, 2, -1, 1))
sketch8.addConstraint(Sketcher.Constraint("Symmetric", 7, 2, 25, 2, -1, 1))
sketch8.addConstraint(Sketcher.Constraint("Symmetric", 8, 2, 26, 2, -1, 1))
sketch8.addConstraint(Sketcher.Constraint("Symmetric", 10, 2, 28, 2, -1, 1))
sketch8.addConstraint(Sketcher.Constraint("Symmetric", 4, 2, 36, 2, -1, 1))
sketch8.addConstraint(Sketcher.Constraint("Symmetric", 5, 2, 37, 2, -1, 1))
sketch8.addConstraint(Sketcher.Constraint("Symmetric", 0, 2, 38, 2, -1, 1))
sketch8.addConstraint(Sketcher.Constraint("Symmetric", 2, 2, 40, 2, -1, 1))
sketch8.addConstraint(Sketcher.Constraint("Symmetric", 4, 2, 18, 2, -2))
sketch8.addConstraint(Sketcher.Constraint("Symmetric", 2, 2, 20, 2, -2))
sketch8.addConstraint(Sketcher.Constraint("Symmetric", 1, 2, 21, 2, -2))
sketch8.addConstraint(Sketcher.Constraint("Symmetric", 5, 2, 23, 2, -2))
sketch8.addConstraint(Sketcher.Constraint("Symmetric", 10, 2, 30, 2, -2))
sketch8.addConstraint(Sketcher.Constraint("Symmetric", 9, 2, 31, 2, -2))
sketch8.addConstraint(Sketcher.Constraint("Symmetric", 7, 2, 33, 2, -2))
sketch8.addConstraint(Sketcher.Constraint("Symmetric", 6, 2, 34, 2, -2))
sketch8.addConstraint(Sketcher.Constraint("Parallel", 0, 3))
sketch8.addConstraint(Sketcher.Constraint("Parallel", 2, 5))
sketch8.addConstraint(Sketcher.Constraint("Parallel", 5, 7))
sketch8.addConstraint(Sketcher.Constraint("Parallel", 3, 8))
sketch8.addConstraint(Sketcher.Constraint("Parallel", 7, 10))
sketch8.addConstraint(Sketcher.Constraint("Parallel", 8, 11))
sketch8.addConstraint(Sketcher.Constraint("Parallel", 11, 12))
sketch8.addConstraint(Sketcher.Constraint("Parallel", 10, 14))
sketch8.addConstraint(Sketcher.Constraint("Parallel", 14, 17))
sketch8.addConstraint(Sketcher.Constraint("Parallel", 17, 20))
sketch8.addConstraint(Sketcher.Constraint("Parallel", 20, 23))
sketch8.addConstraint(Sketcher.Constraint("Parallel", 25, 28))
sketch8.addConstraint(Sketcher.Constraint("Parallel", 26, 29))
sketch8.addConstraint(Sketcher.Constraint("Parallel", 28, 30))
sketch8.addConstraint(Sketcher.Constraint("Parallel", 30, 33))
sketch8.addConstraint(Sketcher.Constraint("Parallel", 37, 40))
sketch8.addConstraint(Sketcher.Constraint("Parallel", 38, 41))
sketch8.addConstraint(Sketcher.Constraint("Horizontal", 2, 2, 5, 2))
sketch8.addConstraint(Sketcher.Constraint("Horizontal", 7, 2, 10, 2))
sketch8.addConstraint(Sketcher.Constraint("Horizontal", 11, 2, 12, 2))
sketch8.addConstraint(Sketcher.Constraint("Horizontal", 10, 2, 14, 2))
sketch8.addConstraint(Sketcher.Constraint("Horizontal", 9, 2, 15, 2))
sketch8.addConstraint(Sketcher.Constraint("Vertical", 1, 2, 3, 2))
sketch8.addConstraint(Sketcher.Constraint("Equal", 4, 6))
sketch8.addConstraint(Sketcher.Constraint("Angle", 0, Q("120 deg")))
sketch8.addConstraint(Sketcher.Constraint("DistanceY", 3, 2, 1, 2, Q("4.3 mm")))
sketch8.addConstraint(Sketcher.Constraint("DistanceX", 6, 2, 18, 2, Q("47.8 mm")))
sketch8.addConstraint(Sketcher.Constraint("DistanceX", 1, 2, 1, 1, Q("2.482606 mm")))
sketch8.addConstraint(Sketcher.Constraint("DistanceX", 0, 2, -1, 1, Q("36.129081 mm")))
sketch8.addConstraint(Sketcher.Constraint("DistanceY", 6, 2, 4, 2, Q("22.640768 mm")))
pocket6 = body.newObject("PartDesign::Pocket", "Pocket005")
pocket6.Profile = sketch8
pocket6.Type = "TwoLengths"
pocket6.setExpression("Length", "Params.pocket6_length")
pocket6.setExpression("Length2", "Params.pocket6_length2")
pocket6.Reversed = True

doc.recompute()
